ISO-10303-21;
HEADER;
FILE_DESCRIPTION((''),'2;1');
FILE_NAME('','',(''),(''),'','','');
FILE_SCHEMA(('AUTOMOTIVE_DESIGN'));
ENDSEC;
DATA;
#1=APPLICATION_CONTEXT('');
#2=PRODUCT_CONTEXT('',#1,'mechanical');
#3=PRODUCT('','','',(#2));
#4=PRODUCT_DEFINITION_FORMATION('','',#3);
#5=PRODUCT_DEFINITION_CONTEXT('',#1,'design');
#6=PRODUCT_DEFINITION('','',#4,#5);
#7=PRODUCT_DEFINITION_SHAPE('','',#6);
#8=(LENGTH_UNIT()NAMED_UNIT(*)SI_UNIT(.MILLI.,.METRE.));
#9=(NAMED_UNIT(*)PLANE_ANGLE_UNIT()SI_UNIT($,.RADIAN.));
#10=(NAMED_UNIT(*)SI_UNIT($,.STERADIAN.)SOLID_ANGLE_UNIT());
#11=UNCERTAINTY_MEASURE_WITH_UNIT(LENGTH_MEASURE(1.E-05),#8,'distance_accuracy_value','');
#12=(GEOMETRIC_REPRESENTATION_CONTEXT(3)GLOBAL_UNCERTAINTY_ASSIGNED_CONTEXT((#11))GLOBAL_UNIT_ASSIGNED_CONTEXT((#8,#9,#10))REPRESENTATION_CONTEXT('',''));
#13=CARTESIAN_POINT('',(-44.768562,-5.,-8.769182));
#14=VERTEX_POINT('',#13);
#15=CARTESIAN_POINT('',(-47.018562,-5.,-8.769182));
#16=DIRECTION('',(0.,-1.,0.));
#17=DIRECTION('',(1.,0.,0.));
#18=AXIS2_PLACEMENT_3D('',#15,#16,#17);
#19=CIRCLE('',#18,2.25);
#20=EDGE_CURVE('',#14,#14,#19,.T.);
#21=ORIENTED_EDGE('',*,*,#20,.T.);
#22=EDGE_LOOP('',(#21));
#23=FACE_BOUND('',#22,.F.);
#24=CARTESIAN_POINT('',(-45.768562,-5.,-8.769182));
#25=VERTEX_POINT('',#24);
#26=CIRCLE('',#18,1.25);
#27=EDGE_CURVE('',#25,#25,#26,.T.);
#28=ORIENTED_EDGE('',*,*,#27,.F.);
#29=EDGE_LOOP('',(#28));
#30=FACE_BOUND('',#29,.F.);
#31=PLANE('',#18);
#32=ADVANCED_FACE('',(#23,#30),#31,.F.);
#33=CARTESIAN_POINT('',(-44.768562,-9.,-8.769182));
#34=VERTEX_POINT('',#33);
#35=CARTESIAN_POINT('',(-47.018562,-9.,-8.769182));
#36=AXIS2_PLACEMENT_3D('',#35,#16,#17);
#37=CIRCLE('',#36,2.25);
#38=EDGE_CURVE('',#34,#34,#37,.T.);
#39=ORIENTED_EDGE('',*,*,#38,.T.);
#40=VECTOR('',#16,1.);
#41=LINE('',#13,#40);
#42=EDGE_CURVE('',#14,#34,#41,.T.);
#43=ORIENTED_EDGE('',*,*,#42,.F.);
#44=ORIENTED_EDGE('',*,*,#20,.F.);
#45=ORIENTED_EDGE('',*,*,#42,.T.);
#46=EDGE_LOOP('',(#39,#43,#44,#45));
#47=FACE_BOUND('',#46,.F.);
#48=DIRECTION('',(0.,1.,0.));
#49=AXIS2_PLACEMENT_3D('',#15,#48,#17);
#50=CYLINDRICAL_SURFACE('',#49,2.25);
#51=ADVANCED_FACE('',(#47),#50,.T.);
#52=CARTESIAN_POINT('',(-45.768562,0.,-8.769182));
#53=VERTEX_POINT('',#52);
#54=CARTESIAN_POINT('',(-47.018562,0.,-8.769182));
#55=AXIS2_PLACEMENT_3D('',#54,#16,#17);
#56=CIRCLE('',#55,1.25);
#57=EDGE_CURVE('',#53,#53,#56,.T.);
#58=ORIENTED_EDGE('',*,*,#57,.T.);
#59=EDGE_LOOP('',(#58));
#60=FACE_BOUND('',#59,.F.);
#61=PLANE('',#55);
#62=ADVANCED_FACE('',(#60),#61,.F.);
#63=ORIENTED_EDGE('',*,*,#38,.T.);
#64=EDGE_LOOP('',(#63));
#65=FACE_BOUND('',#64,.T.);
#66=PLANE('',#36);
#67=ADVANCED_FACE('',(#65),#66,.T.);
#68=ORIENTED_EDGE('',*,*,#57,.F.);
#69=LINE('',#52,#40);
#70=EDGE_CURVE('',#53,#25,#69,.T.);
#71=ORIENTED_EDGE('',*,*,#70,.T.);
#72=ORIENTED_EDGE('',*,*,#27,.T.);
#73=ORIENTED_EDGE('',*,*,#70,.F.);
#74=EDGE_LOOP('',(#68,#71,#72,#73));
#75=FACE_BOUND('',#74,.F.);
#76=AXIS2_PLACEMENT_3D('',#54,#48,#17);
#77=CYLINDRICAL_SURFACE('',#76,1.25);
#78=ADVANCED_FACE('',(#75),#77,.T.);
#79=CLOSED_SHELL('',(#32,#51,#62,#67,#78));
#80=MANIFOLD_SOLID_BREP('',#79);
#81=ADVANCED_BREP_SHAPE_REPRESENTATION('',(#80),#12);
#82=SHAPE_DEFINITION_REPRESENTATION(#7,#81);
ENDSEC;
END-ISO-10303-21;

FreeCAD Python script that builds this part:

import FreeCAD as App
import Part
import Sketcher
from FreeCAD import Vector

doc = App.newDocument("Part")
params = doc.addObject("Spreadsheet::Sheet", "Params")
for row, (alias, value) in enumerate([
    ("sketch1_diameter", "2.5 mm"),
    ("pad1_length", "5 mm"),
    ("sketch2_diameter", "4.5 mm"),
    ("pad2_length", "4 mm"),
], start=1):
    params.set(f"A{row}", alias)
    params.set(f"B{row}", "=" + value)
    params.setAlias(f"B{row}", alias)

body = doc.addObject("PartDesign::Body", "Body")

# Sketch on XZ plane
sketch1 = body.newObject("Sketcher::SketchObject", "Sketch")
sketch1.AttachmentSupport = (doc.getObject("XZ_Plane"), [""])
sketch1.MapMode = "FlatFace"
sketch1.addGeometry(Part.Circle(Vector(-47, -8.8, 0), Vector(0, 0, 1), 1.2), False)
sketch1.addConstraint([
    Sketcher.Constraint("Diameter", 0, 2.5),
    Sketcher.Constraint("DistanceX", 0, 3, -1, 1, 47.018562),
    Sketcher.Constraint("DistanceY", 0, 3, -1, 1, 8.769182),
])
sketch1.setExpression("Constraints[0]", "Params.sketch1_diameter")
pad1 = body.newObject("PartDesign::Pad", "Pad")
pad1.Profile = sketch1
pad1.setExpression("Length", "Params.pad1_length")

# Sketch on XZ plane
sketch2 = body.newObject("Sketcher::SketchObject", "Sketch001")
sketch2.AttachmentSupport = (doc.getObject("XZ_Plane"), [""])
sketch2.MapMode = "FlatFace"
sketch2.AttachmentOffset = App.Placement(Vector(0, 0, 5), App.Rotation())
sketch2.addGeometry(Part.Circle(Vector(-47, -8.8, 0), Vector(0, 0, 1), 2.2), False)
sketch2.addConstraint([
    Sketcher.Constraint("Diameter", 0, 4.5),
    Sketcher.Constraint("DistanceX", 0, 3, -1, 1, 47.018562),
    Sketcher.Constraint("DistanceY", 0, 3, -1, 1, 8.769182),
])
sketch2.setExpression("Constraints[0]", "Params.sketch2_diameter")
pad2 = body.newObject("PartDesign::Pad", "Pad001")
pad2.Profile = sketch2
pad2.setExpression("Length", "Params.pad2_length")

doc.recompute()
